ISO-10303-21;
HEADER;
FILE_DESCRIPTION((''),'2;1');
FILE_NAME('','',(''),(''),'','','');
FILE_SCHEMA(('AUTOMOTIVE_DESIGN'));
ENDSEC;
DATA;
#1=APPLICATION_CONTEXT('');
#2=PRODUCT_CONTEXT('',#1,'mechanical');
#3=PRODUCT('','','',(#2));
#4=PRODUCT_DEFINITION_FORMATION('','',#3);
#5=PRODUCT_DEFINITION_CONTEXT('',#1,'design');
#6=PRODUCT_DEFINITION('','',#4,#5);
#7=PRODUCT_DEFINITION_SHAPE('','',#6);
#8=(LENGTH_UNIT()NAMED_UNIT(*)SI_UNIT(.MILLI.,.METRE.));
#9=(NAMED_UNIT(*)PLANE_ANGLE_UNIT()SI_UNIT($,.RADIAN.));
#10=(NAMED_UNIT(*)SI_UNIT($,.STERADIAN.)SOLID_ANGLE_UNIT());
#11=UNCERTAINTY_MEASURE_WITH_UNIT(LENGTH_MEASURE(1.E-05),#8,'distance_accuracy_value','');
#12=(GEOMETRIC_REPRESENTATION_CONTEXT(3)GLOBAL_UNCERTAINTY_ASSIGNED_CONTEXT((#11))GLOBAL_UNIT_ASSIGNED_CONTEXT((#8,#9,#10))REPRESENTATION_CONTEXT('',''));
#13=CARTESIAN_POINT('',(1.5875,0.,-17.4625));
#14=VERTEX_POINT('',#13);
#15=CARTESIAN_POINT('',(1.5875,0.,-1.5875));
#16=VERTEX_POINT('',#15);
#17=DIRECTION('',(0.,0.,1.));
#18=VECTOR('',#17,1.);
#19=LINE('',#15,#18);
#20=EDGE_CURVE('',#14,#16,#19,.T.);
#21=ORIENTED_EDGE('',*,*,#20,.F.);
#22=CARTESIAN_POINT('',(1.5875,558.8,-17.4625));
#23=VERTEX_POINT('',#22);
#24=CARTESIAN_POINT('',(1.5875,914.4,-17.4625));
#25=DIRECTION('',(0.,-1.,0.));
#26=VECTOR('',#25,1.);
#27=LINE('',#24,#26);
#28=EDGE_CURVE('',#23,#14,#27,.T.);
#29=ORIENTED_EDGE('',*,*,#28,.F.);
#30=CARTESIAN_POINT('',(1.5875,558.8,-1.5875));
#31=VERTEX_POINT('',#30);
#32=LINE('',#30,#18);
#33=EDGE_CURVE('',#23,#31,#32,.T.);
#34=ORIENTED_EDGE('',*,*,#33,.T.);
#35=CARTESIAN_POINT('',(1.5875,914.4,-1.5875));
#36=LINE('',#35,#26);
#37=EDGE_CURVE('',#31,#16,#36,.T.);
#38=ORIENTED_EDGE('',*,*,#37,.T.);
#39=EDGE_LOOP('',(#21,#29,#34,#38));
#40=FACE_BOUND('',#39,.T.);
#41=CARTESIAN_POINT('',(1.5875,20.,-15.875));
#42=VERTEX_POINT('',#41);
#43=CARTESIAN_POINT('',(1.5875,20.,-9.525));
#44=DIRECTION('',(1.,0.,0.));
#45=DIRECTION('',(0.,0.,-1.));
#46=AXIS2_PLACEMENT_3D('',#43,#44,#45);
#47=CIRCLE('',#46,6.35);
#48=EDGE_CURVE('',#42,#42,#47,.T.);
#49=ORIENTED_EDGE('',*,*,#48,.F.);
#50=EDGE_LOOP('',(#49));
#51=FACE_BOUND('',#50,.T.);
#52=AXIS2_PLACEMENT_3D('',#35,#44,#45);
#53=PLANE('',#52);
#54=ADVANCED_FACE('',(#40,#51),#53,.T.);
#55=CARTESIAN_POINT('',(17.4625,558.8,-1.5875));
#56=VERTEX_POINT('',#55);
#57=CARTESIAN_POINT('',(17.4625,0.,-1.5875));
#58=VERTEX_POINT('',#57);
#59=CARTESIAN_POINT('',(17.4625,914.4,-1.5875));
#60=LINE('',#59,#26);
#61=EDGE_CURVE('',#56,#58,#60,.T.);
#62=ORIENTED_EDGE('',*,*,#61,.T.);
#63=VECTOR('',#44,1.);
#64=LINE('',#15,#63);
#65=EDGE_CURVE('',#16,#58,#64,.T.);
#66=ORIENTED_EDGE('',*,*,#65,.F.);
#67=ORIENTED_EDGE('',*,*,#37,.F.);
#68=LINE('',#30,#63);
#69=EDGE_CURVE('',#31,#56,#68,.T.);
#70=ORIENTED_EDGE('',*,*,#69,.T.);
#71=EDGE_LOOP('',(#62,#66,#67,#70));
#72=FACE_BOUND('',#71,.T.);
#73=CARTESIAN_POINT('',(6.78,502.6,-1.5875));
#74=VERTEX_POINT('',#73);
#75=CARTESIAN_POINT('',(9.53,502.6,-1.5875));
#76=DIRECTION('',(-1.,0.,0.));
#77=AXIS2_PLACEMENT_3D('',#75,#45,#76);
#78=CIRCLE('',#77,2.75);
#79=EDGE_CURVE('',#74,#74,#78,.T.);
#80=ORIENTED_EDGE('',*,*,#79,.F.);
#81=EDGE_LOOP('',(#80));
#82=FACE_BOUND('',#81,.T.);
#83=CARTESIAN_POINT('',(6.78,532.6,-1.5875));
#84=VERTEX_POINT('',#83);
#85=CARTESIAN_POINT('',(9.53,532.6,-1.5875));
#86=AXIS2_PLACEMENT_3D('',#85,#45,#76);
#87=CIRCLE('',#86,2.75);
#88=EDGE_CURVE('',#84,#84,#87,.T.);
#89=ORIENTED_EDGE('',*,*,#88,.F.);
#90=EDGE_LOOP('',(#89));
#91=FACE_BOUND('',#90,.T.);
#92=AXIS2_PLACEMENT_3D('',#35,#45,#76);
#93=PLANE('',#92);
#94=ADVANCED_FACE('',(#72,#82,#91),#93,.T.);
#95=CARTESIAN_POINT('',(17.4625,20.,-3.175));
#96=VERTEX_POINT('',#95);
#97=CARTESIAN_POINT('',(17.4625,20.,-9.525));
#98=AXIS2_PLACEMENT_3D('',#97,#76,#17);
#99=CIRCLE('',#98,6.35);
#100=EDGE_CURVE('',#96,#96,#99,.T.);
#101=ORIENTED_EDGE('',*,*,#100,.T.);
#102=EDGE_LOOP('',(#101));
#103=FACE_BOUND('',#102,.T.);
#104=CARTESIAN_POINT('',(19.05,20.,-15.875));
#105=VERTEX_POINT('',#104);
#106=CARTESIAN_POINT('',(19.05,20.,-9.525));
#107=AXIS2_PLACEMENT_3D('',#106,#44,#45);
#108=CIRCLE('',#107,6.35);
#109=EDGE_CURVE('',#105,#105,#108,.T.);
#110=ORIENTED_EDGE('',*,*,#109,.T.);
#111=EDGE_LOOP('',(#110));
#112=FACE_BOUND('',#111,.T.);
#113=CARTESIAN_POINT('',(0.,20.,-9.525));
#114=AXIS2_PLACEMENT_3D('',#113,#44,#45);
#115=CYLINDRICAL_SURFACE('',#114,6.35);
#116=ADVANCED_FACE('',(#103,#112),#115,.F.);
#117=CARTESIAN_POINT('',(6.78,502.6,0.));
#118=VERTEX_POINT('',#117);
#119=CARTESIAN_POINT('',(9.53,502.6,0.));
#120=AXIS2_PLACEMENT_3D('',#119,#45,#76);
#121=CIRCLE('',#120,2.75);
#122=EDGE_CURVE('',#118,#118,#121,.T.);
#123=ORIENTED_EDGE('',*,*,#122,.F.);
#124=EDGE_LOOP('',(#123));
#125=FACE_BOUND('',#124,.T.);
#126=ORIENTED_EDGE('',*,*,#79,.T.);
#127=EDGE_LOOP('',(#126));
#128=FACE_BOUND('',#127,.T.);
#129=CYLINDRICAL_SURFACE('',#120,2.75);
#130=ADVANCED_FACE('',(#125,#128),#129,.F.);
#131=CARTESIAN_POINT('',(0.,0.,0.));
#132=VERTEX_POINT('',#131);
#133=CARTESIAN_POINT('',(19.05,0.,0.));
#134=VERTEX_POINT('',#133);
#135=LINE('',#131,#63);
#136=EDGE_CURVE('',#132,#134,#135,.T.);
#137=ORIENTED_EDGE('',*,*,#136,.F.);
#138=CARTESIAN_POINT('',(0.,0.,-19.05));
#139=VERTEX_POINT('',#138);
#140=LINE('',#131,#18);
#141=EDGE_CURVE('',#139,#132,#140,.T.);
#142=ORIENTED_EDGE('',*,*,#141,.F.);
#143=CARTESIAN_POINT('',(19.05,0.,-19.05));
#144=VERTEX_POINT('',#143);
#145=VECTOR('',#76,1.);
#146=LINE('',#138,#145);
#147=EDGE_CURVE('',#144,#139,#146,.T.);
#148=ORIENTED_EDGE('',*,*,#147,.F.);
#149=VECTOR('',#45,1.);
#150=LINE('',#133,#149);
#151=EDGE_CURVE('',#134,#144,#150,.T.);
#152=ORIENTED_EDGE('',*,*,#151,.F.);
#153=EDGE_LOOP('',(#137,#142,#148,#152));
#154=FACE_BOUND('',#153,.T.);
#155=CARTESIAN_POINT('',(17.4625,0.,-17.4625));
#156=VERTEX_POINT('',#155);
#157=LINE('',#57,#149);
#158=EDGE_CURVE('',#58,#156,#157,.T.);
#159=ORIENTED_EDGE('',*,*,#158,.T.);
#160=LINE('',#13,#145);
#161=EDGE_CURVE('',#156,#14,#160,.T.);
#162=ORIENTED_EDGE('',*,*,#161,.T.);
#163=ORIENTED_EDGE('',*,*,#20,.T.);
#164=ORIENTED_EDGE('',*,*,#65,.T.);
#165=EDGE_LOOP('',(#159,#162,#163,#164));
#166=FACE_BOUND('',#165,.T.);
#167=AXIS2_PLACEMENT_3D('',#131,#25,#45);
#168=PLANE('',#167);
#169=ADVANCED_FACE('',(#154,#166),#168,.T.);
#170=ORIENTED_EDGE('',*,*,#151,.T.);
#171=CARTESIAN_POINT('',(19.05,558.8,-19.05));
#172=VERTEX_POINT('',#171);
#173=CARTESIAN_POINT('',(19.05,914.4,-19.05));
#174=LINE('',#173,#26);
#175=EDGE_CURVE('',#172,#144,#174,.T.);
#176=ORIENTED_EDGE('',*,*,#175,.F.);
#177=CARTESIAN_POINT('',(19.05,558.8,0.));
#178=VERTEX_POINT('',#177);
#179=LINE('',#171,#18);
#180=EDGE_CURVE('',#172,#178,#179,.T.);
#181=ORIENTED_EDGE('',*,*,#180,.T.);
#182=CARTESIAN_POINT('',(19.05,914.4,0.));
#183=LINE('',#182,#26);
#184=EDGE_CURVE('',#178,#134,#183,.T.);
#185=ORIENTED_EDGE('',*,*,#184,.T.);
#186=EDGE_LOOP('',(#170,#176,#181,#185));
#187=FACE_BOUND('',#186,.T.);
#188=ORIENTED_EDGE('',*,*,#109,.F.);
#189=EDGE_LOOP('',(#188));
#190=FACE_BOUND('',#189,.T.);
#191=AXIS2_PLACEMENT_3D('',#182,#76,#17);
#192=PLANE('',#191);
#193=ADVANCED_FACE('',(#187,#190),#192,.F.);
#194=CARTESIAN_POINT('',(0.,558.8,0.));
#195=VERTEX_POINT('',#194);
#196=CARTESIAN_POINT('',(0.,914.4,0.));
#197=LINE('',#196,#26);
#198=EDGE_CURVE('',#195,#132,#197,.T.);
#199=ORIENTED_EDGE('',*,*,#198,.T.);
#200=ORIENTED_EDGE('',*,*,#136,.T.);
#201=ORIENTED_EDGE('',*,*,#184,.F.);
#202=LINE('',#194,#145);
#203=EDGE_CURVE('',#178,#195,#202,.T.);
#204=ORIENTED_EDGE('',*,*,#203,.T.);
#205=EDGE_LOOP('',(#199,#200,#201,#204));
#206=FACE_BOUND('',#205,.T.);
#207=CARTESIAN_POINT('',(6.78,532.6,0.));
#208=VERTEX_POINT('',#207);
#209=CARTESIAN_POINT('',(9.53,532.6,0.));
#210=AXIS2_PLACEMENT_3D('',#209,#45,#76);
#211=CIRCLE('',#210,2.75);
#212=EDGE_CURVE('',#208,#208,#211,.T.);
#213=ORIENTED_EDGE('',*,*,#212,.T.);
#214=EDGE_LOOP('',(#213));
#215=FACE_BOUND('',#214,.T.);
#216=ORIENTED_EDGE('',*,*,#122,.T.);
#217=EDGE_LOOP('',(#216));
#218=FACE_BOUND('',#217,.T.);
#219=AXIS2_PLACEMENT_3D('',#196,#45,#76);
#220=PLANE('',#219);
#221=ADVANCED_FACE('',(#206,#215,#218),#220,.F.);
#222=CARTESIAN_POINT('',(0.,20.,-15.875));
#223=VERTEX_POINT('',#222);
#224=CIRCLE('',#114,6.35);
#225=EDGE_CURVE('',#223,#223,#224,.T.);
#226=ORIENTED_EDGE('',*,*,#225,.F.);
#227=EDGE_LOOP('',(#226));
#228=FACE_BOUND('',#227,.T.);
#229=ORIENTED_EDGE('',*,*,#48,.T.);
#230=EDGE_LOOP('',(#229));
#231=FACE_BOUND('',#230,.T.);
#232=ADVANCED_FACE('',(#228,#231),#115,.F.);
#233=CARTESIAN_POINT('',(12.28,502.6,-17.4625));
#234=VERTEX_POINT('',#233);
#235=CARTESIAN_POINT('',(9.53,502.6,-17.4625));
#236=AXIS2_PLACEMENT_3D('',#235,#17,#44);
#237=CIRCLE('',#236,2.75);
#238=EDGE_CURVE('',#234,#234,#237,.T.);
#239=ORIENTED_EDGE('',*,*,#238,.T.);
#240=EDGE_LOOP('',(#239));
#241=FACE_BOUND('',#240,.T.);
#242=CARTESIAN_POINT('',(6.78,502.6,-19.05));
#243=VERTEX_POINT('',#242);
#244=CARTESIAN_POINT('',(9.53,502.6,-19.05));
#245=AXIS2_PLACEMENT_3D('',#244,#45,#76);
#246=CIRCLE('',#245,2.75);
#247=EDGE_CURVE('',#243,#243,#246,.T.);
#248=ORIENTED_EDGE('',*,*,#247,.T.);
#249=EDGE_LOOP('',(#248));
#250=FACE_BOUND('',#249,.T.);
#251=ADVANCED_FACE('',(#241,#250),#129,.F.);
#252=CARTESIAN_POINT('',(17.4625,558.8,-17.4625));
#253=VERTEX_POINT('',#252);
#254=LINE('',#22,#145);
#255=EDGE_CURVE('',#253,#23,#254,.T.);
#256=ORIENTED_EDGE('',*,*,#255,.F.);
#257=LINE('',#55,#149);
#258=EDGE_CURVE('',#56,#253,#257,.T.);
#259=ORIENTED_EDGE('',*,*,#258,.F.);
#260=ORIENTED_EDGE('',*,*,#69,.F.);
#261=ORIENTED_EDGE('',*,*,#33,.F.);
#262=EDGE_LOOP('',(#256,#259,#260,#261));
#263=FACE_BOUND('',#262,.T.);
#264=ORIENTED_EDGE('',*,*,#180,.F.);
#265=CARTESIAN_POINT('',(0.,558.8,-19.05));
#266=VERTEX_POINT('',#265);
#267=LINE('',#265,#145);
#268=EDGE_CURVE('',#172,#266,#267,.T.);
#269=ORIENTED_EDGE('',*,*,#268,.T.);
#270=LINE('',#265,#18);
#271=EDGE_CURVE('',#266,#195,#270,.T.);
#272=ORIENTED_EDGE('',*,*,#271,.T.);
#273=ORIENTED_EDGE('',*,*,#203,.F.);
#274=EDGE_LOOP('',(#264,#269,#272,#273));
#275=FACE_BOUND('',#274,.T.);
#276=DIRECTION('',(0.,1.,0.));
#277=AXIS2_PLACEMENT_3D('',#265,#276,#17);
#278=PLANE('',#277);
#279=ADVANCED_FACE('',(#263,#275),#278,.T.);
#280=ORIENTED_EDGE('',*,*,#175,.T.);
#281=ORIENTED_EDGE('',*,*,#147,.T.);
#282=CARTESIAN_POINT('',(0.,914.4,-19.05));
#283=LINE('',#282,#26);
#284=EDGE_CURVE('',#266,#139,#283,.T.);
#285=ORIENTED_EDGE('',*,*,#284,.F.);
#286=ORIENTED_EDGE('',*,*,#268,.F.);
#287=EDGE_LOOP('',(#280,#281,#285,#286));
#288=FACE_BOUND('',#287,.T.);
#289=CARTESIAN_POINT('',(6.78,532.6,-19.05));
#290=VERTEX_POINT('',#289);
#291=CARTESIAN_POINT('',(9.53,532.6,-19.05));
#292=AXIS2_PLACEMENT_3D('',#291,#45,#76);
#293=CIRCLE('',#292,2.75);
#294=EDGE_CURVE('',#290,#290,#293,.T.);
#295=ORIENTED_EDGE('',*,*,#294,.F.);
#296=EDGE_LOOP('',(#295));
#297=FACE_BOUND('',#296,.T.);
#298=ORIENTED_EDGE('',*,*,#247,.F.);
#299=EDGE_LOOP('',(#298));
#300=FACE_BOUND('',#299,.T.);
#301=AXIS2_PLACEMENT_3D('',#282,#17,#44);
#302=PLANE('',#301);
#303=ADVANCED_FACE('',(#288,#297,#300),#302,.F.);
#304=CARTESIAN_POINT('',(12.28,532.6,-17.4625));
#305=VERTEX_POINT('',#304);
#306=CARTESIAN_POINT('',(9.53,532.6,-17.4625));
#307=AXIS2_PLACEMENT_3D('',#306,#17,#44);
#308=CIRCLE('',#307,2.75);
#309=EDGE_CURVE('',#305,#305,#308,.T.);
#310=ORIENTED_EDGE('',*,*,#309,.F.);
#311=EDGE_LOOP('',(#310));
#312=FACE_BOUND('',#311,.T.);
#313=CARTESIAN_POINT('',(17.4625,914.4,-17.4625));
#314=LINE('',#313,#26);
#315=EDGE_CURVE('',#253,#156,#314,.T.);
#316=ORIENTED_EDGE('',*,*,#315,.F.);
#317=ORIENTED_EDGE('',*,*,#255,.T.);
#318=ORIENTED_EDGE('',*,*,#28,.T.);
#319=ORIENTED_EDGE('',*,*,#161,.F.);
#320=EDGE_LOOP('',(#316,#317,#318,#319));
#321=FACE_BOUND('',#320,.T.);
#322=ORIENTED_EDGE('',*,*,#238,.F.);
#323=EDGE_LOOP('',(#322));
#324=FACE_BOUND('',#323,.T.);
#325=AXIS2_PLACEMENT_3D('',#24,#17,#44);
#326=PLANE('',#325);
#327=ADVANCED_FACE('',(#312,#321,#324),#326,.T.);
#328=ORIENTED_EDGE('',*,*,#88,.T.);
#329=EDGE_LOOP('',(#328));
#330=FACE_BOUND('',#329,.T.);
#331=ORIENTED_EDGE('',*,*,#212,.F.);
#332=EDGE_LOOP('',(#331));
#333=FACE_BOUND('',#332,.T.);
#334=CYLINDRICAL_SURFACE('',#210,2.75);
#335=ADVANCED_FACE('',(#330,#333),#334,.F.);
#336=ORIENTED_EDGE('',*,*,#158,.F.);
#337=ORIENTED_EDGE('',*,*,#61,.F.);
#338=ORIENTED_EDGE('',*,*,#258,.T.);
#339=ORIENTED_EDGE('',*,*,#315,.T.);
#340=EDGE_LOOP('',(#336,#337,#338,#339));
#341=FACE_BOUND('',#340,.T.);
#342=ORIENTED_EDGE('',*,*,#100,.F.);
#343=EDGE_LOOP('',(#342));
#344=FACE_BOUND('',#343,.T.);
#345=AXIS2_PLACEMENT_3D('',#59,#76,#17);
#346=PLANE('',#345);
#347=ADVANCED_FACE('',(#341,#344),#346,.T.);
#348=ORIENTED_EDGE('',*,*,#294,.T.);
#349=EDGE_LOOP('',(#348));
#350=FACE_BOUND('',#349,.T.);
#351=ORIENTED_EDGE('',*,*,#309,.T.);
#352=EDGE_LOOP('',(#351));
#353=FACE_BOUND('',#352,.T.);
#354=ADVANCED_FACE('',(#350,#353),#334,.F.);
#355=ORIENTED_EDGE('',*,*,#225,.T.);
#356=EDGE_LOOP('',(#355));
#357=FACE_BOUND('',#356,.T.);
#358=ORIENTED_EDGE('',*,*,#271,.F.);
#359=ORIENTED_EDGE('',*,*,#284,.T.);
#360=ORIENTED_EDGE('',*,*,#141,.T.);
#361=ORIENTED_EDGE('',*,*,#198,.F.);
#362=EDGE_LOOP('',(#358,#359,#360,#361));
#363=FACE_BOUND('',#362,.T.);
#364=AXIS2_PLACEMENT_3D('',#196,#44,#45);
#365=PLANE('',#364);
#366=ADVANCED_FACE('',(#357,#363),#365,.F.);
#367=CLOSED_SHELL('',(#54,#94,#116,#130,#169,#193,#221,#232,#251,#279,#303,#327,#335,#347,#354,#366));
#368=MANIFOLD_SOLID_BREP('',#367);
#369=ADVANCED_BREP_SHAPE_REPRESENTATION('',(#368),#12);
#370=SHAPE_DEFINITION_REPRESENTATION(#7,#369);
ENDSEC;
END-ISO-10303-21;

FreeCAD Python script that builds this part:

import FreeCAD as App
import Part
import Sketcher
Q = App.Units.Quantity

doc = App.newDocument("Part")
body = doc.addObject("PartDesign::Body", "Body")

# Sketch on XZ plane
sketch1 = body.newObject("Sketcher::SketchObject", "Sketch")
sketch1.AttachmentSupport = (doc.getObject("XZ_Plane"), [""])
sketch1.MapMode = "FlatFace"
sketch1.addGeometry(Part.LineSegment(App.Vector(0, -19, 0), App.Vector(0, 0, 0)), False)
sketch1.addGeometry(Part.LineSegment(App.Vector(0, 0, 0), App.Vector(19, 0, 0)), False)
sketch1.addGeometry(Part.LineSegment(App.Vector(19, 0, 0), App.Vector(19, -19, 0)), False)
sketch1.addGeometry(Part.LineSegment(App.Vector(19, -19, 0), App.Vector(0, -19, 0)), False)
sketch1.addGeometry(Part.LineSegment(App.Vector(17, -2, 0), App.Vector(2, -2, 0)), False)
sketch1.addGeometry(Part.LineSegment(App.Vector(2, -2, 0), App.Vector(2, -17, 0)), False)
sketch1.addGeometry(Part.LineSegment(App.Vector(2, -17, 0), App.Vector(17, -17, 0)), False)
sketch1.addGeometry(Part.LineSegment(App.Vector(17, -17, 0), App.Vector(17, -2, 0)), False)
sketch1.addConstraint(Sketcher.Constraint("Coincident", 0, 2, 1, 1))
sketch1.addConstraint(Sketcher.Constraint("Coincident", 1, 2, 2, 1))
sketch1.addConstraint(Sketcher.Constraint("Coincident", 2, 2, 3, 1))
sketch1.addConstraint(Sketcher.Constraint("Coincident", 3, 2, 0, 1))
sketch1.addConstraint(Sketcher.Constraint("Coincident", 4, 2, 5, 1))
sketch1.addConstraint(Sketcher.Constraint("Coincident", 5, 2, 6, 1))
sketch1.addConstraint(Sketcher.Constraint("Coincident", 6, 2, 7, 1))
sketch1.addConstraint(Sketcher.Constraint("Coincident", 7, 2, 4, 1))
sketch1.addConstraint(Sketcher.Constraint("Vertical", 0))
sketch1.addConstraint(Sketcher.Constraint("Horizontal", 1))
sketch1.addConstraint(Sketcher.Constraint("Vertical", 2))
sketch1.addConstraint(Sketcher.Constraint("Horizontal", 3))
sketch1.addConstraint(Sketcher.Constraint("Horizontal", 4))
sketch1.addConstraint(Sketcher.Constraint("Vertical", 5))
sketch1.addConstraint(Sketcher.Constraint("Horizontal", 6))
sketch1.addConstraint(Sketcher.Constraint("Vertical", 7))
sketch1.addConstraint(Sketcher.Constraint("Coincident", 0, 2, -1, 1))
sketch1.addConstraint(Sketcher.Constraint("Equal", 3, 0))
sketch1.addConstraint(Sketcher.Constraint("Equal", 6, 5))
sketch1.addConstraint(Sketcher.Constraint("DistanceX", 1, 1, 1, 2, Q("0.75 in")))
sketch1.addConstraint(Sketcher.Constraint("DistanceX", 4, 2, 4, 1, Q("0.625 in")))
sketch1.addConstraint(Sketcher.Constraint("DistanceX", -1, 1, 4, 2, Q("0.0625 in")))
sketch1.addConstraint(Sketcher.Constraint("DistanceY", 4, 2, -1, 1, Q("0.0625 in")))
pad1 = body.newObject("PartDesign::Pad", "Pad")
pad1.Profile = sketch1
pad1.Length = Q("36 in")
pad1.Reversed = True

# Sketch on YZ plane
sketch2 = body.newObject("Sketcher::SketchObject", "Sketch001")
sketch2.AttachmentSupport = (doc.getObject("YZ_Plane"), [""])
sketch2.MapMode = "FlatFace"
sketch2.AttachmentOffset = App.Placement(App.Vector(0, 0, 0.75 * 25.4), App.Rotation())
sketch2.addGeometry(Part.Circle(App.Vector(20, -10, 0), App.Vector(0, 0, 1), 6), False)
sketch2.addConstraint(Sketcher.Constraint("Diameter", 0, Q("0.5 in")))
sketch2.addConstraint(Sketcher.Constraint("DistanceY", 0, 3, -1, 1, Q("0.375 in")))
sketch2.addConstraint(Sketcher.Constraint("DistanceX", -1, 1, 0, 3, Q("20 mm")))
pocket1 = body.newObject("PartDesign::Pocket", "Pocket")
pocket1.Profile = sketch2
pocket1.Type = "ThroughAll"

# Sketch on XY plane
sketch3 = body.newObject("Sketcher::SketchObject", "Sketch002")
sketch3.AttachmentSupport = (doc.getObject("XY_Plane"), [""])
sketch3.MapMode = "FlatFace"
sketch3.addGeometry(Part.LineSegment(App.Vector(-92, 1007, 0), App.Vector(-92, -92, 0)), False)
sketch3.addGeometry(Part.LineSegment(App.Vector(-92, -92, 0), App.Vector(112, -92, 0)), False)
sketch3.addGeometry(Part.LineSegment(App.Vector(112, -92, 0), App.Vector(112, 1007, 0)), False)
sketch3.addGeometry(Part.LineSegment(App.Vector(112, 1007, 0), App.Vector(-92, 1007, 0)), False)
sketch3.addGeometry(Part.LineSegment(App.Vector(19, 0, 0), App.Vector(0, 0, 0)), False)
sketch3.addGeometry(Part.LineSegment(App.Vector(0, 0, 0), App.Vector(0, 559, 0)), False)
sketch3.addGeometry(Part.LineSegment(App.Vector(0, 559, 0), App.Vector(19, 559, 0)), False)
sketch3.addGeometry(Part.LineSegment(App.Vector(19, 559, 0), App.Vector(19, 0, 0)), False)
sketch3.addConstraint(Sketcher.Constraint("Coincident", 0, 2, 1, 1))
sketch3.addConstraint(Sketcher.Constraint("Coincident", 1, 2, 2, 1))
sketch3.addConstraint(Sketcher.Constraint("Coincident", 2, 2, 3, 1))
sketch3.addConstraint(Sketcher.Constraint("Coincident", 3, 2, 0, 1))
sketch3.addConstraint(Sketcher.Constraint("Coincident", 4, 2, 5, 1))
sketch3.addConstraint(Sketcher.Constraint("Coincident", 5, 2, 6, 1))
sketch3.addConstraint(Sketcher.Constraint("Coincident", 6, 2, 7, 1))
sketch3.addConstraint(Sketcher.Constraint("Coincident", 7, 2, 4, 1))
sketch3.addConstraint(Sketcher.Constraint("Vertical", 0))
sketch3.addConstraint(Sketcher.Constraint("Horizontal", 1))
sketch3.addConstraint(Sketcher.Constraint("Vertical", 2))
sketch3.addConstraint(Sketcher.Constraint("Horizontal", 3))
sketch3.addConstraint(Sketcher.Constraint("Horizontal", 4))
sketch3.addConstraint(Sketcher.Constraint("Vertical", 5))
sketch3.addConstraint(Sketcher.Constraint("Horizontal", 6))
sketch3.addConstraint(Sketcher.Constraint("Vertical", 7))
sketch3.addConstraint(Sketcher.Constraint("Coincident", 4, 2, -1, 1))
sketch3.addConstraint(Sketcher.Constraint("DistanceY", 5, 1, 5, 2, Q("22 in")))
sketch3.addConstraint(Sketcher.Constraint("DistanceX", 4, 2, 4, 1, Q("0.75 in")))
sketch3.addConstraint(Sketcher.Constraint("DistanceX", 1, 1, 1, 2, Q("204.01 mm")))
sketch3.addConstraint(Sketcher.Constraint("DistanceY", 0, 2, 0, 1, Q("1099.36 mm")))
sketch3.addConstraint(Sketcher.Constraint("DistanceX", 0, 2, -1, 1, Q("92.48 mm")))
sketch3.addConstraint(Sketcher.Constraint("DistanceY", 0, 2, -1, 1, Q("92.48 mm")))
pocket2 = body.newObject("PartDesign::Pocket", "Pocket001")
pocket2.Profile = sketch3
pocket2.Type = "ThroughAll"

# Sketch on XY plane
sketch4 = body.newObject("Sketcher::SketchObject", "Sketch003")
sketch4.AttachmentSupport = (doc.getObject("XY_Plane"), [""])
sketch4.MapMode = "FlatFace"
sketch4.AttachmentOffset = App.Placement(App.Vector(0, 0, -0.75 * 25.4), App.Rotation())
sketch4.addGeometry(Part.Circle(App.Vector(9.5, 532.6, 0), App.Vector(0, 0, 1), 2.8), False)
sketch4.addGeometry(Part.Circle(App.Vector(9.5, 502.6, 0), App.Vector(0, 0, 1), 2.8), False)
sketch4.addConstraint(Sketcher.Constraint("Equal", 0, 1))
sketch4.addConstraint(Sketcher.Constraint("Vertical", 0, 3, 1, 3))
sketch4.addConstraint(Sketcher.Constraint("Diameter", 0, Q("5.5 mm")))
sketch4.addConstraint(Sketcher.Constraint("DistanceX", -1, 1, 0, 3, Q("9.53 mm")))
sketch4.addConstraint(Sketcher.Constraint("DistanceY", -1, 1, 0, 3, Q("532.6 mm")))
sketch4.addConstraint(Sketcher.Constraint("DistanceY", -1, 1, 1, 3, Q("502.6 mm")))
pocket3 = body.newObject("PartDesign::Pocket", "Pocket002")
pocket3.Profile = sketch4
pocket3.Type = "ThroughAll"
pocket3.Reversed = True

doc.recompute()
